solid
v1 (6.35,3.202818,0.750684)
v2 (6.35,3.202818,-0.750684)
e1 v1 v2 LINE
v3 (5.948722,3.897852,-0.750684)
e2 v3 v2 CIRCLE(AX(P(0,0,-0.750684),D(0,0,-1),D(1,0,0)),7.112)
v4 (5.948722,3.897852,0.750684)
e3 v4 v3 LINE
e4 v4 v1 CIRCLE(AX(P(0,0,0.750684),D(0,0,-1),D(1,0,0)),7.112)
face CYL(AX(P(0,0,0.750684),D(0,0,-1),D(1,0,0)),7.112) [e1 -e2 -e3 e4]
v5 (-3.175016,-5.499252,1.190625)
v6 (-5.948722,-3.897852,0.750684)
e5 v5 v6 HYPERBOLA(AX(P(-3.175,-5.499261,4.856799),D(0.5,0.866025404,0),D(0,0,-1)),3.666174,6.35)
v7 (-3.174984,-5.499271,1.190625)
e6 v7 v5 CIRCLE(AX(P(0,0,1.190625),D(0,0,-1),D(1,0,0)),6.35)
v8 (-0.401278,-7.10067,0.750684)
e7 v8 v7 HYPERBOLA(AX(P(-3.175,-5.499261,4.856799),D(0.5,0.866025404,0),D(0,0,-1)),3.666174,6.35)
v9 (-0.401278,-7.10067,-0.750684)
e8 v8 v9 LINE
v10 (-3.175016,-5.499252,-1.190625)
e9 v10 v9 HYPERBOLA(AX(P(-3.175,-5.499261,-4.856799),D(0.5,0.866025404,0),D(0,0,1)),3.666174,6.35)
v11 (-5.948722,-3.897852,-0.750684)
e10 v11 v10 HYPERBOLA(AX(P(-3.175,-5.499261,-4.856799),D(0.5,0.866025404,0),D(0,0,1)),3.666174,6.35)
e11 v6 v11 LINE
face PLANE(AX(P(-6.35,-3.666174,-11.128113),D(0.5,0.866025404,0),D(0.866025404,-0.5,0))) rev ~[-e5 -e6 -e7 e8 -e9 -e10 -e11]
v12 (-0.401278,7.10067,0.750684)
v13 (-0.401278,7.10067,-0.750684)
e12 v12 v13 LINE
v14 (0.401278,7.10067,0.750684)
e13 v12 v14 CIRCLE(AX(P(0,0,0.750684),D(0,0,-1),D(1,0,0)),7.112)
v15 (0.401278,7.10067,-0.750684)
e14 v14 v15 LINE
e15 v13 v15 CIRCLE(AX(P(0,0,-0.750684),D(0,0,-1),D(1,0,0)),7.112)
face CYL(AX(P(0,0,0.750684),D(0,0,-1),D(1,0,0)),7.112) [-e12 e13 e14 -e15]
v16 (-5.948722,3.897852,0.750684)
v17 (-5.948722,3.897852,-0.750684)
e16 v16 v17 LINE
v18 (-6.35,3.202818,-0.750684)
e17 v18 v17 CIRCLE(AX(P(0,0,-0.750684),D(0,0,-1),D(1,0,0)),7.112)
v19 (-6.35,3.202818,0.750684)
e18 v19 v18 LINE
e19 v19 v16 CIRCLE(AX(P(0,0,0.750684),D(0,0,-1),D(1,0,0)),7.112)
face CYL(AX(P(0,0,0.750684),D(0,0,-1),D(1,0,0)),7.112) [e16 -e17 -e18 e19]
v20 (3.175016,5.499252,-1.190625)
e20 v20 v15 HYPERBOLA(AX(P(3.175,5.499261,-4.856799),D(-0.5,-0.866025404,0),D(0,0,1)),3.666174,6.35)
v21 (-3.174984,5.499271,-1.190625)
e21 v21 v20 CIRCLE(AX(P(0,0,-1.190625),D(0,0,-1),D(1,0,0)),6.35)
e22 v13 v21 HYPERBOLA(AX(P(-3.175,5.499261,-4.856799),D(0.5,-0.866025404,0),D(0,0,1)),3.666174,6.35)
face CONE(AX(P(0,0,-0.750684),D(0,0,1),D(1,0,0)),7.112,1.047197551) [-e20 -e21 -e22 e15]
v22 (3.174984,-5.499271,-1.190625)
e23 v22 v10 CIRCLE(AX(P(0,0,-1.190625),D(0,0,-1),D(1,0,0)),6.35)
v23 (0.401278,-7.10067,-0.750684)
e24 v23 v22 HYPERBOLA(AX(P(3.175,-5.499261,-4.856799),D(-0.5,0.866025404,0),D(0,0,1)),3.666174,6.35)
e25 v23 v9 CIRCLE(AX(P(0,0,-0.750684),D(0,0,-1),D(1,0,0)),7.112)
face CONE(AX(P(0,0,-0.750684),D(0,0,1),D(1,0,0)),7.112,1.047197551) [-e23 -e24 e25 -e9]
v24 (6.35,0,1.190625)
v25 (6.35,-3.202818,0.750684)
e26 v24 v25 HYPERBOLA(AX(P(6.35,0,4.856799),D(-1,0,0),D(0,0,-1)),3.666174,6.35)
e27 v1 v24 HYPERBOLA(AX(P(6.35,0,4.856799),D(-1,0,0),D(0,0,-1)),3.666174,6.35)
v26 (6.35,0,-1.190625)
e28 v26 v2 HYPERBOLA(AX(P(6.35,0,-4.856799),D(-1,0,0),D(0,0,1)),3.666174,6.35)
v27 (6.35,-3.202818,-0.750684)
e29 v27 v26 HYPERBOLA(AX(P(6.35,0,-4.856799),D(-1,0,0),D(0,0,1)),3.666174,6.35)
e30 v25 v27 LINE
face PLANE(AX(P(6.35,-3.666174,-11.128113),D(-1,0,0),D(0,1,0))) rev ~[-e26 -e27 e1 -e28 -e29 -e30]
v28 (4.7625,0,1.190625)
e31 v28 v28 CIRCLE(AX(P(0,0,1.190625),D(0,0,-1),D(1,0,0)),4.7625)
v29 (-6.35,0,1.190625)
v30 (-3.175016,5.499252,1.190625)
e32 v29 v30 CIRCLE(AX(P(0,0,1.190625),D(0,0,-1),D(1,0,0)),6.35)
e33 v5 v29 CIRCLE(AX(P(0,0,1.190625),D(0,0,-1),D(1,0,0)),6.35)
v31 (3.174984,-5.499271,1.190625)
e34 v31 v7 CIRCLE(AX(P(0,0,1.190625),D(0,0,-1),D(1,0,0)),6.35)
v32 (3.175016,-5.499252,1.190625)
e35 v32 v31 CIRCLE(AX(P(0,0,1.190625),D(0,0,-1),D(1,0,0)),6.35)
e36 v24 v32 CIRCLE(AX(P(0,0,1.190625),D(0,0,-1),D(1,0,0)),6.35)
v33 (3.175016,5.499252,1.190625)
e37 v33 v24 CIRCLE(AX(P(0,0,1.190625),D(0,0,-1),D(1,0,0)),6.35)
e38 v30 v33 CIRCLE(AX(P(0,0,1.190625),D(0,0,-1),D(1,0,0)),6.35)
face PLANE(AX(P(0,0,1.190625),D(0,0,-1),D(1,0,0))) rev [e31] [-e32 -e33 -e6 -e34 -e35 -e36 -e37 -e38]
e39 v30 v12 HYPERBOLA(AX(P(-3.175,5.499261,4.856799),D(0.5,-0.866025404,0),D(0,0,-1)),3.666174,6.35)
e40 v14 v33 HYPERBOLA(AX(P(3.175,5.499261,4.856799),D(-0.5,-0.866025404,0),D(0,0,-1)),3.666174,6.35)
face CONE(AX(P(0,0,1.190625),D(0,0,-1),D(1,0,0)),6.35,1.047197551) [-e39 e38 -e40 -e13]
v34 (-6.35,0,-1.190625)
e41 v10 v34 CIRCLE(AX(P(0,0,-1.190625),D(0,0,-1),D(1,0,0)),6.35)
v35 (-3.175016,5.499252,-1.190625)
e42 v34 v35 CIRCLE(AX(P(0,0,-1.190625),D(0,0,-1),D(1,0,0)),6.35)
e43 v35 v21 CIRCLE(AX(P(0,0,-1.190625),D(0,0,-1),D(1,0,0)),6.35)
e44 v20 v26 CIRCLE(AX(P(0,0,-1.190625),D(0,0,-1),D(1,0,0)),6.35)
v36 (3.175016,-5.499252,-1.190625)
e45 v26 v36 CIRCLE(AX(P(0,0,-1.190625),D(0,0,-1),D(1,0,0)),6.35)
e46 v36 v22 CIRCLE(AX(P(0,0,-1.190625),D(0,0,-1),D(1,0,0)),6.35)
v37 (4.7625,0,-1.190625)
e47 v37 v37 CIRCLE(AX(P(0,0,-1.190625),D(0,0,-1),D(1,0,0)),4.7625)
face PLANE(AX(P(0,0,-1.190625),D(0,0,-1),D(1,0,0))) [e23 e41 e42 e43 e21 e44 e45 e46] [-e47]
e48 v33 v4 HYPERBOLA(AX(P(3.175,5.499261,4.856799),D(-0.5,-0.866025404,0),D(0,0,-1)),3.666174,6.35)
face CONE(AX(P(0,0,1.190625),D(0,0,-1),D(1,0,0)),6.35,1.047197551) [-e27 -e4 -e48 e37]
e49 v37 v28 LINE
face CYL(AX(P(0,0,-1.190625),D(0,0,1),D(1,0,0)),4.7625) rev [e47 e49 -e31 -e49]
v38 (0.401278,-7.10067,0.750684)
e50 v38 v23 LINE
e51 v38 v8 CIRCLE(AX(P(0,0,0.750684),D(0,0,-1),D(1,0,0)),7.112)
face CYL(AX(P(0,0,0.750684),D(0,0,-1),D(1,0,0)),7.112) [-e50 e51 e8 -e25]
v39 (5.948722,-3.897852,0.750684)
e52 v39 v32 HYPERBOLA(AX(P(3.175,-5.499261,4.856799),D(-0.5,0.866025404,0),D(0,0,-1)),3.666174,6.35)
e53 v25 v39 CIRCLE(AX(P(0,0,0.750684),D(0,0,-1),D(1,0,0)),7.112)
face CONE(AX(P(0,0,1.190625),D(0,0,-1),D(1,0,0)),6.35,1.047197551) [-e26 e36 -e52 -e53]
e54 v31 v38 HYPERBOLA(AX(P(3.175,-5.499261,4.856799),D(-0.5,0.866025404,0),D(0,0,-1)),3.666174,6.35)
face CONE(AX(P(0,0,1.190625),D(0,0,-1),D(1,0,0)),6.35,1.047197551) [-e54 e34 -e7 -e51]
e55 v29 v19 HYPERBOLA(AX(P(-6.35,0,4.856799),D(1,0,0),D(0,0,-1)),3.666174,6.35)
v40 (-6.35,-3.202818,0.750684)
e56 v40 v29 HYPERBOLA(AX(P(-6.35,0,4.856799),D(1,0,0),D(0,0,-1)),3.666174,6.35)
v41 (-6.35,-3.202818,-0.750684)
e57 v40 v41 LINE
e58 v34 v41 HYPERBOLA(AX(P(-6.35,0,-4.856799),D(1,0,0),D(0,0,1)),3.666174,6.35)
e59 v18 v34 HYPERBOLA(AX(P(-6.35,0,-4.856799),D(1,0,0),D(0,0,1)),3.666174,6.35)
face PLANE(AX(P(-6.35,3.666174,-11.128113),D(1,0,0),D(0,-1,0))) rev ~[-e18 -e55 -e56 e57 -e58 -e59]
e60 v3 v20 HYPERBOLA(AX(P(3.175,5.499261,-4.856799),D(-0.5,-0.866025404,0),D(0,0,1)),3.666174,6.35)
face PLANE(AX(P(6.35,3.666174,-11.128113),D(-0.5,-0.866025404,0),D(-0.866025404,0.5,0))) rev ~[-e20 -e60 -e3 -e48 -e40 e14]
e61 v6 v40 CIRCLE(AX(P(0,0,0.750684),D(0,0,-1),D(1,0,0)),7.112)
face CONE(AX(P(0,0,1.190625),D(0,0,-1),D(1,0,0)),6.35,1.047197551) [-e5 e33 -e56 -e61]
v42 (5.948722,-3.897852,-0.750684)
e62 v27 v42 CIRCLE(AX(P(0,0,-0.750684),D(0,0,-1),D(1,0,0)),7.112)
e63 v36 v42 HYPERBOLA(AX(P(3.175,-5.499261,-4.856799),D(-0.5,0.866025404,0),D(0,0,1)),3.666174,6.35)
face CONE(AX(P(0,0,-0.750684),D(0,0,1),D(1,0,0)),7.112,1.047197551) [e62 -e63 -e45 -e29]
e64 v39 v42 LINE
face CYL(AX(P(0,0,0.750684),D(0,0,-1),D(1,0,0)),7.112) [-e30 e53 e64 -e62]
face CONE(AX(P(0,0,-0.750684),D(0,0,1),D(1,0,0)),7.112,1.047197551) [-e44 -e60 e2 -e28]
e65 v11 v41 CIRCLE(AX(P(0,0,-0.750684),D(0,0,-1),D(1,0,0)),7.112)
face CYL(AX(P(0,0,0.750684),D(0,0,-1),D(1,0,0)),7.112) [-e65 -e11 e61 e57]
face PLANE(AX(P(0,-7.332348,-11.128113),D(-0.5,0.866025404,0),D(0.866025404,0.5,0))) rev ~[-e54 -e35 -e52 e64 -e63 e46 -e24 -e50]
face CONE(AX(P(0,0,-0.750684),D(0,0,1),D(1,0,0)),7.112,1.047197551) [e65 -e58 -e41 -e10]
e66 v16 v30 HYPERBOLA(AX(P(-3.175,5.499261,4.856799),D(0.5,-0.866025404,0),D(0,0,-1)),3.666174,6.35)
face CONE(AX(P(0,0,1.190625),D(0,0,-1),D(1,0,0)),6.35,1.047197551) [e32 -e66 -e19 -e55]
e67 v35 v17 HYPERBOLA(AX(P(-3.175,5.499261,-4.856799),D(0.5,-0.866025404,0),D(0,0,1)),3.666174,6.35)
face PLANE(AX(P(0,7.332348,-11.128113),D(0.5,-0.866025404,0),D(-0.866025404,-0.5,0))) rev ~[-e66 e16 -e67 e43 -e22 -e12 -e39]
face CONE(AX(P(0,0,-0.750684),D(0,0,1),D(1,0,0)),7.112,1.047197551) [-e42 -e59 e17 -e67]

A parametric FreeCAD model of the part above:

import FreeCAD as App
import Part
import Sketcher

V = App.Vector
Q = App.Units.Quantity

doc = App.newDocument("Part")
body = doc.addObject("PartDesign::Body", "Body")

sketch1 = body.newObject("Sketcher::SketchObject", "Sketch")
sketch1.AttachmentSupport = (doc.getObject("YZ_Plane"), [""])
sketch1.MapMode = "FlatFace"
sketch1.addGeometry([
    Part.LineSegment(V(7.112, 0.750684, 0), V(6.35, 1.190625, 0)),
    Part.LineSegment(V(6.35, 1.190625, 0), V(4.7625, 1.190625, 0)),
    Part.LineSegment(V(4.7625, 1.190625, 0), V(4.7625, -1.190625, 0)),
    Part.LineSegment(V(4.7625, -1.190625, 0), V(6.35, -1.190625, 0)),
    Part.LineSegment(V(6.35, -1.190625, 0), V(7.112, -0.750684, 0)),
    Part.LineSegment(V(7.112, -0.750684, 0), V(7.112, 0.750684, 0)),
], False)
sketch1.addConstraint([
    Sketcher.Constraint("Coincident", 0, 2, 1, 1),
    Sketcher.Constraint("Coincident", 1, 2, 2, 1),
    Sketcher.Constraint("Coincident", 2, 2, 3, 1),
    Sketcher.Constraint("Coincident", 3, 2, 4, 1),
    Sketcher.Constraint("Coincident", 4, 2, 5, 1),
    Sketcher.Constraint("Coincident", 5, 2, 0, 1),
    Sketcher.Constraint("Horizontal", 1),
    Sketcher.Constraint("Vertical", 2),
    Sketcher.Constraint("Horizontal", 3),
    Sketcher.Constraint("Vertical", 5),
    Sketcher.Constraint("Symmetric", 0, 2, 3, 2, -1),
    Sketcher.Constraint("Equal", 0, 4),
    Sketcher.Constraint("Angle", 0, Q("150 deg")),
    Sketcher.Constraint("DistanceX", 1, 2, 1, 1, Q("0.0625 in")),
    Sketcher.Constraint("DistanceY", 2, 2, 2, 1, Q("0.09375 in")),
    Sketcher.Constraint("DistanceX", -1, 1, 0, 2, Q("0.25 in")),
    Sketcher.Constraint("DistanceX", -1, 1, 4, 2, Q("0.28 in")),
])
revolution = body.newObject("PartDesign::Revolution", "Revolution")
revolution.Profile = sketch1
revolution.ReferenceAxis = (sketch1, ["V_Axis"])
revolution.Angle = 360

sketch2 = body.newObject("Sketcher::SketchObject", "Sketch001")
sketch2.AttachmentSupport = (doc.getObject("XY_Plane"), [""])
sketch2.MapMode = "FlatFace"
sketch2.addGeometry([
    Part.LineSegment(V(-10.138, 10.138, 0), V(-10.138, -10.138, 0)),
    Part.LineSegment(V(-10.138, -10.138, 0), V(10.138, -10.138, 0)),
    Part.LineSegment(V(10.138, -10.138, 0), V(10.138, 10.138, 0)),
    Part.LineSegment(V(10.138, 10.138, 0), V(-10.138, 10.138, 0)),
    Part.LineSegment(V(-6.35, 3.666174, 0), V(0, 7.332348, 0)),
    Part.LineSegment(V(0, 7.332348, 0), V(6.35, 3.666174, 0)),
    Part.LineSegment(V(6.35, 3.666174, 0), V(6.35, -3.666174, 0)),
    Part.LineSegment(V(6.35, -3.666174, 0), V(0, -7.332348, 0)),
    Part.LineSegment(V(0, -7.332348, 0), V(-6.35, -3.666174, 0)),
    Part.LineSegment(V(-6.35, -3.666174, 0), V(-6.35, 3.666174, 0)),
], False)
sketch2.addConstraint([
    Sketcher.Constraint("Coincident", 0, 2, 1, 1),
    Sketcher.Constraint("Coincident", 1, 2, 2, 1),
    Sketcher.Constraint("Coincident", 2, 2, 3, 1),
    Sketcher.Constraint("Coincident", 3, 2, 0, 1),
    Sketcher.Constraint("Coincident", 4, 2, 5, 1),
    Sketcher.Constraint("Coincident", 5, 2, 6, 1),
    Sketcher.Constraint("Coincident", 6, 2, 7, 1),
    Sketcher.Constraint("Coincident", 7, 2, 8, 1),
    Sketcher.Constraint("Coincident", 8, 2, 9, 1),
    Sketcher.Constraint("Coincident", 9, 2, 4, 1),
    Sketcher.Constraint("Vertical", 0),
    Sketcher.Constraint("Horizontal", 1),
    Sketcher.Constraint("Vertical", 2),
    Sketcher.Constraint("Horizontal", 3),
    Sketcher.Constraint("Vertical", 6),
    Sketcher.Constraint("Vertical", 9),
    Sketcher.Constraint("Symmetric", 0, 2, 2, 2, -1, 1),
    Sketcher.Constraint("Symmetric", 4, 2, 7, 2, -1, 1),
    Sketcher.Constraint("Symmetric", 5, 2, 8, 2, -1, 1),
    Sketcher.Constraint("PointOnObject", 4, 2, -2),
    Sketcher.Constraint("Parallel", 4, 7),
    Sketcher.Constraint("Horizontal", 6, 2, 8, 2),
    Sketcher.Constraint("Equal", 3, 0),
    Sketcher.Constraint("Angle", 4, Q("30 deg")),
    Sketcher.Constraint("DistanceX", 8, 2, 6, 2, Q("0.5 in")),
    Sketcher.Constraint("DistanceX", 1, 1, 1, 2, Q("20.276 mm")),
    Sketcher.Constraint("DistanceY", 6, 2, 6, 1, Q("7.332348 mm")),
])
pocket1 = body.newObject("PartDesign::Pocket", "Pocket")
pocket1.Profile = sketch2
pocket1.Type = "ThroughAll"
pocket1.Midplane = True

doc.recompute()
